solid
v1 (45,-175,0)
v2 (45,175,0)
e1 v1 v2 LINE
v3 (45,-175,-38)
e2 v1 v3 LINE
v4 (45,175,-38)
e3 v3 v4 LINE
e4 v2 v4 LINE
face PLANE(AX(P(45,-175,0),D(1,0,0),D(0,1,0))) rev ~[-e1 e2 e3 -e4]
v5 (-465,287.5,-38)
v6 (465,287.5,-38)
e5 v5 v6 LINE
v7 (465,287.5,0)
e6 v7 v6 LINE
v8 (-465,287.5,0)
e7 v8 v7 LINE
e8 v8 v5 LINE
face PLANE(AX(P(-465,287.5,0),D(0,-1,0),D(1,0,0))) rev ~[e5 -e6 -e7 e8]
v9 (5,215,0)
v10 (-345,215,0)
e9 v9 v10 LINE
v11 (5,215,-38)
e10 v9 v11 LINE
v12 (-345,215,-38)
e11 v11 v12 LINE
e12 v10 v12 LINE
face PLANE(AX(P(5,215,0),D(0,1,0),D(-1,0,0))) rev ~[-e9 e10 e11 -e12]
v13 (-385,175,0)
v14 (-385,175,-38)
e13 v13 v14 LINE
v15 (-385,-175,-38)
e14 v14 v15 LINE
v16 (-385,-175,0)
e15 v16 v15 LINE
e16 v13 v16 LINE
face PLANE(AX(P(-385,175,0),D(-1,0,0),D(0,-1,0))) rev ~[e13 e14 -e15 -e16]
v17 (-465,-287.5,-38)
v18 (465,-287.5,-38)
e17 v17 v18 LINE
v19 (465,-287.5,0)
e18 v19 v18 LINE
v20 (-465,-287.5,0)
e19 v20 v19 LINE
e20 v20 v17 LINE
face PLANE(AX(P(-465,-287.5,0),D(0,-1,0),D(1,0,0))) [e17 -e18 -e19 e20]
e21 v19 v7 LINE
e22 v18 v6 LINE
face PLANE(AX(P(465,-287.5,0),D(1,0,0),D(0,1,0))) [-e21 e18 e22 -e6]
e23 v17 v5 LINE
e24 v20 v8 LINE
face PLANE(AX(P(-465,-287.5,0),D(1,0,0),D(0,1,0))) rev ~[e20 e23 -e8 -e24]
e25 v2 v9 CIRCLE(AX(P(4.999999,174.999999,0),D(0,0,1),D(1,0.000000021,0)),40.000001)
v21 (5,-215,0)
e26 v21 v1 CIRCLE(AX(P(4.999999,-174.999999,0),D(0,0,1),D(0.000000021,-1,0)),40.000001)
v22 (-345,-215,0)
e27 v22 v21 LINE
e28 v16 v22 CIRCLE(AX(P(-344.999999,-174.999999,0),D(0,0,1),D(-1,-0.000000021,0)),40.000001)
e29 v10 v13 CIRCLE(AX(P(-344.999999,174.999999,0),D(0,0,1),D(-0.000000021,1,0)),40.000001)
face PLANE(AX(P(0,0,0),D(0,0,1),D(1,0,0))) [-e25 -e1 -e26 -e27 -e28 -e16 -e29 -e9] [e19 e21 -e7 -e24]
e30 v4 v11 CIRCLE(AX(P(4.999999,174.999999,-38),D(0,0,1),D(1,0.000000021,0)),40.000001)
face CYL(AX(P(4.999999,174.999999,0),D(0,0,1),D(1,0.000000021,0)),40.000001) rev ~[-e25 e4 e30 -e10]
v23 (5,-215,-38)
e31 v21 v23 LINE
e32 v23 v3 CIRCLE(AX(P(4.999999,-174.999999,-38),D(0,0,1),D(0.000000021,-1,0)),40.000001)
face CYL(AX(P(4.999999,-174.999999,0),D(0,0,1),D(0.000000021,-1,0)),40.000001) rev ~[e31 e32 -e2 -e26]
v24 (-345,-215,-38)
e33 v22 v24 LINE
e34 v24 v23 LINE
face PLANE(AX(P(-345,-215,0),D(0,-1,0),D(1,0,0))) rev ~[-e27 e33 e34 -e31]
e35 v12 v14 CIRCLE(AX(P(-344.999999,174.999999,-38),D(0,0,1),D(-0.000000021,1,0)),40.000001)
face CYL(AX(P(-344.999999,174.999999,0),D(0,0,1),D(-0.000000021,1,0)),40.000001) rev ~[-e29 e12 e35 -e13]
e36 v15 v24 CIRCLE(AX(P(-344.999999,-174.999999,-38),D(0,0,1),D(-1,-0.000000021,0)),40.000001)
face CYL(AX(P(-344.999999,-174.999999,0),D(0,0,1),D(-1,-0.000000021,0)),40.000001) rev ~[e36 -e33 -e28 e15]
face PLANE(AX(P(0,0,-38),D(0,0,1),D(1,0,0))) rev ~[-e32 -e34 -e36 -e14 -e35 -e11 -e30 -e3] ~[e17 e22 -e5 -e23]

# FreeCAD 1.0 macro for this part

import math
import FreeCAD as App
import Part
import Sketcher

V = App.Vector
Q = App.Units.Quantity

doc = App.newDocument("Part")
body = doc.addObject("PartDesign::Body", "Body")

# Sketch on XY plane
sketch1 = body.newObject("Sketcher::SketchObject", "Sketch")
sketch1.AttachmentSupport = (doc.getObject("XY_Plane"), [""])
sketch1.MapMode = "FlatFace"
sketch1.addGeometry(Part.LineSegment(V(-465, 287.5, 0), V(-465, -287.5, 0)), False)
sketch1.addGeometry(Part.LineSegment(V(-465, -287.5, 0), V(465, -287.5, 0)), False)
sketch1.addGeometry(Part.LineSegment(V(465, -287.5, 0), V(465, 287.5, 0)), False)
sketch1.addGeometry(Part.LineSegment(V(465, 287.5, 0), V(-465, 287.5, 0)), False)
sketch1.addConstraint(Sketcher.Constraint("Coincident", 0, 2, 1, 1))
sketch1.addConstraint(Sketcher.Constraint("Coincident", 1, 2, 2, 1))
sketch1.addConstraint(Sketcher.Constraint("Coincident", 2, 2, 3, 1))
sketch1.addConstraint(Sketcher.Constraint("Coincident", 3, 2, 0, 1))
sketch1.addConstraint(Sketcher.Constraint("Vertical", 0))
sketch1.addConstraint(Sketcher.Constraint("Horizontal", 1))
sketch1.addConstraint(Sketcher.Constraint("Vertical", 2))
sketch1.addConstraint(Sketcher.Constraint("Horizontal", 3))
sketch1.addConstraint(Sketcher.Constraint("Symmetric", 0, 2, 2, 2, -1, 1))
sketch1.addConstraint(Sketcher.Constraint("DistanceX", 1, 1, 1, 2, Q("930 mm")))
sketch1.addConstraint(Sketcher.Constraint("DistanceY", 0, 2, 0, 1, Q("575 mm")))
pad1 = body.newObject("PartDesign::Pad", "Pad")
pad1.Profile = sketch1
pad1.Length = 38
pad1.Reversed = True

# Sketch on XY plane
sketch2 = body.newObject("Sketcher::SketchObject", "Sketch001")
sketch2.AttachmentSupport = (doc.getObject("XY_Plane"), [""])
sketch2.MapMode = "FlatFace"
sketch2.addGeometry(Part.LineSegment(V(5, 215, 0), V(-345, 215, 0)), False)
sketch2.addGeometry(Part.ArcOfCircle(Part.Circle(V(-344.999999, 174.999999, 0), V(0, 0, 1), 40.000001), math.radians(90.000001), math.radians(179.999999)), False)
sketch2.addGeometry(Part.LineSegment(V(-385, 175, 0), V(-385, -175, 0)), False)
sketch2.addGeometry(Part.ArcOfCircle(Part.Circle(V(-344.999999, -174.999999, 0), V(0, 0, 1), 40.000001), math.radians(-179.999999), math.radians(-90.000001)), False)
sketch2.addGeometry(Part.LineSegment(V(-345, -215, 0), V(5, -215, 0)), False)
sketch2.addGeometry(Part.ArcOfCircle(Part.Circle(V(4.999999, -174.999999, 0), V(0, 0, 1), 40.000001), math.radians(-89.999999), math.radians(-0.000001)), False)
sketch2.addGeometry(Part.LineSegment(V(45, -175, 0), V(45, 175, 0)), False)
sketch2.addGeometry(Part.ArcOfCircle(Part.Circle(V(4.999999, 174.999999, 0), V(0, 0, 1), 40.000001), math.radians(0.000001), math.radians(89.999999)), False)
sketch2.addConstraint(Sketcher.Constraint("Tangent", 0, 2, 1, 1))
sketch2.addConstraint(Sketcher.Constraint("Tangent", 1, 2, 2, 1))
sketch2.addConstraint(Sketcher.Constraint("Tangent", 2, 2, 3, 1))
sketch2.addConstraint(Sketcher.Constraint("Tangent", 3, 2, 4, 1))
sketch2.addConstraint(Sketcher.Constraint("Tangent", 4, 2, 5, 1))
sketch2.addConstraint(Sketcher.Constraint("Tangent", 5, 2, 6, 1))
sketch2.addConstraint(Sketcher.Constraint("Tangent", 6, 2, 7, 1))
sketch2.addConstraint(Sketcher.Constraint("Tangent", 7, 2, 0, 1))
sketch2.addConstraint(Sketcher.Constraint("Horizontal", 0))
sketch2.addConstraint(Sketcher.Constraint("Vertical", 2))
sketch2.addConstraint(Sketcher.Constraint("Horizontal", 4))
sketch2.addConstraint(Sketcher.Constraint("Vertical", 6))
sketch2.addConstraint(Sketcher.Constraint("Equal", 1, 3))
sketch2.addConstraint(Sketcher.Constraint("Equal", 3, 5))
sketch2.addConstraint(Sketcher.Constraint("Equal", 5, 7))
sketch2.addConstraint(Sketcher.Constraint("Equal", 4, 2))
sketch2.addConstraint(Sketcher.Constraint("Radius", 1, Q("40.000001 mm")))
sketch2.addConstraint(Sketcher.Constraint("DistanceX", 0, 2, 0, 1, Q("350 mm")))
sketch2.addConstraint(Sketcher.Constraint("DistanceX", 1, 3, -1, 1, Q("344.999999 mm")))
sketch2.addConstraint(Sketcher.Constraint("DistanceY", -1, 1, 1, 3, Q("174.999999 mm")))
pocket1 = body.newObject("PartDesign::Pocket", "Pocket")
pocket1.Profile = sketch2
pocket1.Type = "ThroughAll"

doc.recompute()
